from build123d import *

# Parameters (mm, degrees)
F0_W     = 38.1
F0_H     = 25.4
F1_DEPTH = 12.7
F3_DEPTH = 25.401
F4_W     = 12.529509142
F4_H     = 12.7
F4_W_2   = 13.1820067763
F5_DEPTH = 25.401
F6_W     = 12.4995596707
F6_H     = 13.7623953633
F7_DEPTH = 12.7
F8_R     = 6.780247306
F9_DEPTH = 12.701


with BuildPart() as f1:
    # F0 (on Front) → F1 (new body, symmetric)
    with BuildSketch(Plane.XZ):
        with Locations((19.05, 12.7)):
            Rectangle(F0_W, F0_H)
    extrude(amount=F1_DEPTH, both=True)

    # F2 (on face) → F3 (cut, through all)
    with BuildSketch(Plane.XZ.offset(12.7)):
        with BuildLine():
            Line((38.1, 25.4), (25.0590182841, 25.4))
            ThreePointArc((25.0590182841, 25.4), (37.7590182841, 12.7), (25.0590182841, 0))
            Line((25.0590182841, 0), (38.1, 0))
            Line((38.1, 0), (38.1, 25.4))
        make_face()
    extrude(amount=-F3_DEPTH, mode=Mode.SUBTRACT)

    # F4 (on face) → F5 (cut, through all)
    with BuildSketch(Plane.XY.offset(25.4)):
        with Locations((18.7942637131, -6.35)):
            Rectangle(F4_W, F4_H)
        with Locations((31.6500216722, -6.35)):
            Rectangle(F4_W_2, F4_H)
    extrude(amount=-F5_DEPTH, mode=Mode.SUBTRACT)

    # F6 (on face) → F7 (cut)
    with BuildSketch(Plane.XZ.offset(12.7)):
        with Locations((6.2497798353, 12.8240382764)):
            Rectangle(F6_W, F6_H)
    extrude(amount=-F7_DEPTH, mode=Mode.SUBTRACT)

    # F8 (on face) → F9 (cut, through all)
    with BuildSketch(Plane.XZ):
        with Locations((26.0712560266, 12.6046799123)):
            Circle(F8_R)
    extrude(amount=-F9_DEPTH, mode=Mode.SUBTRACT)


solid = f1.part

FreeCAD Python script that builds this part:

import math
import FreeCAD as App
import Part
import Sketcher
Q = App.Units.Quantity

doc = App.newDocument("Part")
body = doc.addObject("PartDesign::Body", "Body")

# Sketch on XZ plane
sketch1 = body.newObject("Sketcher::SketchObject", "Sketch")
sketch1.AttachmentSupport = (doc.getObject("XZ_Plane"), [""])
sketch1.MapMode = "FlatFace"
sketch1.addGeometry(Part.LineSegment(App.Vector(0, 25.4, 0), App.Vector(0, 0, 0)), False)
sketch1.addGeometry(Part.LineSegment(App.Vector(0, 0, 0), App.Vector(38.1, 0, 0)), False)
sketch1.addGeometry(Part.LineSegment(App.Vector(38.1, 0, 0), App.Vector(38.1, 25.4, 0)), False)
sketch1.addGeometry(Part.LineSegment(App.Vector(38.1, 25.4, 0), App.Vector(0, 25.4, 0)), False)
sketch1.addConstraint(Sketcher.Constraint("Coincident", 0, 2, 1, 1))
sketch1.addConstraint(Sketcher.Constraint("Coincident", 1, 2, 2, 1))
sketch1.addConstraint(Sketcher.Constraint("Coincident", 2, 2, 3, 1))
sketch1.addConstraint(Sketcher.Constraint("Coincident", 3, 2, 0, 1))
sketch1.addConstraint(Sketcher.Constraint("Vertical", 0))
sketch1.addConstraint(Sketcher.Constraint("Horizontal", 1))
sketch1.addConstraint(Sketcher.Constraint("Vertical", 2))
sketch1.addConstraint(Sketcher.Constraint("Horizontal", 3))
sketch1.addConstraint(Sketcher.Constraint("Coincident", 0, 2, -1, 1))
sketch1.addConstraint(Sketcher.Constraint("DistanceY", 0, 2, 0, 1, Q("1 in")))
sketch1.addConstraint(Sketcher.Constraint("DistanceX", 1, 1, 1, 2, Q("1.5 in")))
pad1 = body.newObject("PartDesign::Pad", "Pad")
pad1.Profile = sketch1
pad1.Length = Q("1 in")
pad1.Midplane = True

# Sketch on XZ plane
sketch2 = body.newObject("Sketcher::SketchObject", "Sketch001")
sketch2.AttachmentSupport = (doc.getObject("XZ_Plane"), [""])
sketch2.MapMode = "FlatFace"
sketch2.AttachmentOffset = App.Placement(App.Vector(0, 0, 0.5 * 25.4), App.Rotation())
sketch2.addGeometry(Part.LineSegment(App.Vector(38.1, 25.4, 0), App.Vector(25.059018, 25.4, 0)), False)
sketch2.addGeometry(Part.ArcOfCircle(Part.Circle(App.Vector(25.059018, 12.7, 0), App.Vector(0, 0, 1), 12.7), math.radians(-90), math.radians(90)), False)
sketch2.addGeometry(Part.LineSegment(App.Vector(25.059018, 0, 0), App.Vector(38.1, 0, 0)), False)
sketch2.addGeometry(Part.LineSegment(App.Vector(38.1, 0, 0), App.Vector(38.1, 25.4, 0)), False)
sketch2.addConstraint(Sketcher.Constraint("Tangent", 0, 2, 1, 2))
sketch2.addConstraint(Sketcher.Constraint("Tangent", 1, 1, 2, 1))
sketch2.addConstraint(Sketcher.Constraint("Coincident", 2, 2, 3, 1))
sketch2.addConstraint(Sketcher.Constraint("Coincident", 3, 2, 0, 1))
sketch2.addConstraint(Sketcher.Constraint("Horizontal", 0))
sketch2.addConstraint(Sketcher.Constraint("Horizontal", 2))
sketch2.addConstraint(Sketcher.Constraint("Vertical", 3))
sketch2.addConstraint(Sketcher.Constraint("PointOnObject", 1, 1, -1))
sketch2.addConstraint(Sketcher.Constraint("Radius", 1, Q("0.5 in")))
sketch2.addConstraint(Sketcher.Constraint("DistanceX", -1, 1, 2, 2, Q("1.5 in")))
sketch2.addConstraint(Sketcher.Constraint("DistanceX", 0, 2, 0, 1, Q("13.040982 mm")))
pocket1 = body.newObject("PartDesign::Pocket", "Pocket")
pocket1.Profile = sketch2
pocket1.Type = "ThroughAll"

# Sketch on XY plane
sketch3 = body.newObject("Sketcher::SketchObject", "Sketch002")
sketch3.AttachmentSupport = (doc.getObject("XY_Plane"), [""])
sketch3.MapMode = "FlatFace"
sketch3.AttachmentOffset = App.Placement(App.Vector(0, 0, 1 * 25.4), App.Rotation())
sketch3.addGeometry(Part.LineSegment(App.Vector(12.529509, 0, 0), App.Vector(12.529509, -12.7, 0)), False)
sketch3.addGeometry(Part.LineSegment(App.Vector(12.529509, -12.7, 0), App.Vector(38.241025, -12.7, 0)), False)
sketch3.addGeometry(Part.LineSegment(App.Vector(38.241025, -12.7, 0), App.Vector(38.241025, 0, 0)), False)
sketch3.addGeometry(Part.LineSegment(App.Vector(38.241025, 0, 0), App.Vector(12.529509, 0, 0)), False)
sketch3.addConstraint(Sketcher.Constraint("Coincident", 0, 2, 1, 1))
sketch3.addConstraint(Sketcher.Constraint("Coincident", 1, 2, 2, 1))
sketch3.addConstraint(Sketcher.Constraint("Coincident", 2, 2, 3, 1))
sketch3.addConstraint(Sketcher.Constraint("Coincident", 3, 2, 0, 1))
sketch3.addConstraint(Sketcher.Constraint("Vertical", 0))
sketch3.addConstraint(Sketcher.Constraint("Horizontal", 1))
sketch3.addConstraint(Sketcher.Constraint("Vertical", 2))
sketch3.addConstraint(Sketcher.Constraint("Horizontal", 3))
sketch3.addConstraint(Sketcher.Constraint("PointOnObject", 2, 2, -1))
sketch3.addConstraint(Sketcher.Constraint("DistanceY", 0, 2, 0, 1, Q("0.5 in")))
sketch3.addConstraint(Sketcher.Constraint("DistanceX", 1, 1, 1, 2, Q("25.711516 mm")))
sketch3.addConstraint(Sketcher.Constraint("DistanceX", -1, 1, 0, 2, Q("12.529509 mm")))
pocket2 = body.newObject("PartDesign::Pocket", "Pocket001")
pocket2.Profile = sketch3
pocket2.Type = "ThroughAll"

# Sketch on XZ plane
sketch4 = body.newObject("Sketcher::SketchObject", "Sketch003")
sketch4.AttachmentSupport = (doc.getObject("XZ_Plane"), [""])
sketch4.MapMode = "FlatFace"
sketch4.AttachmentOffset = App.Placement(App.Vector(0, 0, 0.5 * 25.4), App.Rotation())
sketch4.addGeometry(Part.LineSegment(App.Vector(0, 19.705236, 0), App.Vector(0, 5.942841, 0)), False)
sketch4.addGeometry(Part.LineSegment(App.Vector(0, 5.942841, 0), App.Vector(12.49956, 5.942841, 0)), False)
sketch4.addGeometry(Part.LineSegment(App.Vector(12.49956, 5.942841, 0), App.Vector(12.49956, 19.705236, 0)), False)
sketch4.addGeometry(Part.LineSegment(App.Vector(12.49956, 19.705236, 0), App.Vector(0, 19.705236, 0)), False)
sketch4.addConstraint(Sketcher.Constraint("Coincident", 0, 2, 1, 1))
sketch4.addConstraint(Sketcher.Constraint("Coincident", 1, 2, 2, 1))
sketch4.addConstraint(Sketcher.Constraint("Coincident", 2, 2, 3, 1))
sketch4.addConstraint(Sketcher.Constraint("Coincident", 3, 2, 0, 1))
sketch4.addConstraint(Sketcher.Constraint("Vertical", 0))
sketch4.addConstraint(Sketcher.Constraint("Horizontal", 1))
sketch4.addConstraint(Sketcher.Constraint("Vertical", 2))
sketch4.addConstraint(Sketcher.Constraint("Horizontal", 3))
sketch4.addConstraint(Sketcher.Constraint("PointOnObject", 0, 2, -2))
sketch4.addConstraint(Sketcher.Constraint("DistanceX", 1, 1, 1, 2, Q("12.49956 mm")))
sketch4.addConstraint(Sketcher.Constraint("DistanceY", 0, 2, 0, 1, Q("13.762395 mm")))
sketch4.addConstraint(Sketcher.Constraint("DistanceY", -1, 1, 0, 2, Q("5.942841 mm")))
pocket3 = body.newObject("PartDesign::Pocket", "Pocket002")
pocket3.Profile = sketch4
pocket3.Length = Q("0.5 in")

# Sketch on XZ plane
sketch5 = body.newObject("Sketcher::SketchObject", "Sketch004")
sketch5.AttachmentSupport = (doc.getObject("XZ_Plane"), [""])
sketch5.MapMode = "FlatFace"
sketch5.addGeometry(Part.Circle(App.Vector(26.071256, 12.60468, 0), App.Vector(0, 0, 1), 6.780247), False)
sketch5.addConstraint(Sketcher.Constraint("Diameter", 0, Q("13.560495 mm")))
sketch5.addConstraint(Sketcher.Constraint("DistanceY", -1, 1, 0, 3, Q("12.60468 mm")))
sketch5.addConstraint(Sketcher.Constraint("DistanceX", -1, 1, 0, 3, Q("26.071256 mm")))
pocket4 = body.newObject("PartDesign::Pocket", "Pocket003")
pocket4.Profile = sketch5
pocket4.Type = "ThroughAll"

doc.recompute()
